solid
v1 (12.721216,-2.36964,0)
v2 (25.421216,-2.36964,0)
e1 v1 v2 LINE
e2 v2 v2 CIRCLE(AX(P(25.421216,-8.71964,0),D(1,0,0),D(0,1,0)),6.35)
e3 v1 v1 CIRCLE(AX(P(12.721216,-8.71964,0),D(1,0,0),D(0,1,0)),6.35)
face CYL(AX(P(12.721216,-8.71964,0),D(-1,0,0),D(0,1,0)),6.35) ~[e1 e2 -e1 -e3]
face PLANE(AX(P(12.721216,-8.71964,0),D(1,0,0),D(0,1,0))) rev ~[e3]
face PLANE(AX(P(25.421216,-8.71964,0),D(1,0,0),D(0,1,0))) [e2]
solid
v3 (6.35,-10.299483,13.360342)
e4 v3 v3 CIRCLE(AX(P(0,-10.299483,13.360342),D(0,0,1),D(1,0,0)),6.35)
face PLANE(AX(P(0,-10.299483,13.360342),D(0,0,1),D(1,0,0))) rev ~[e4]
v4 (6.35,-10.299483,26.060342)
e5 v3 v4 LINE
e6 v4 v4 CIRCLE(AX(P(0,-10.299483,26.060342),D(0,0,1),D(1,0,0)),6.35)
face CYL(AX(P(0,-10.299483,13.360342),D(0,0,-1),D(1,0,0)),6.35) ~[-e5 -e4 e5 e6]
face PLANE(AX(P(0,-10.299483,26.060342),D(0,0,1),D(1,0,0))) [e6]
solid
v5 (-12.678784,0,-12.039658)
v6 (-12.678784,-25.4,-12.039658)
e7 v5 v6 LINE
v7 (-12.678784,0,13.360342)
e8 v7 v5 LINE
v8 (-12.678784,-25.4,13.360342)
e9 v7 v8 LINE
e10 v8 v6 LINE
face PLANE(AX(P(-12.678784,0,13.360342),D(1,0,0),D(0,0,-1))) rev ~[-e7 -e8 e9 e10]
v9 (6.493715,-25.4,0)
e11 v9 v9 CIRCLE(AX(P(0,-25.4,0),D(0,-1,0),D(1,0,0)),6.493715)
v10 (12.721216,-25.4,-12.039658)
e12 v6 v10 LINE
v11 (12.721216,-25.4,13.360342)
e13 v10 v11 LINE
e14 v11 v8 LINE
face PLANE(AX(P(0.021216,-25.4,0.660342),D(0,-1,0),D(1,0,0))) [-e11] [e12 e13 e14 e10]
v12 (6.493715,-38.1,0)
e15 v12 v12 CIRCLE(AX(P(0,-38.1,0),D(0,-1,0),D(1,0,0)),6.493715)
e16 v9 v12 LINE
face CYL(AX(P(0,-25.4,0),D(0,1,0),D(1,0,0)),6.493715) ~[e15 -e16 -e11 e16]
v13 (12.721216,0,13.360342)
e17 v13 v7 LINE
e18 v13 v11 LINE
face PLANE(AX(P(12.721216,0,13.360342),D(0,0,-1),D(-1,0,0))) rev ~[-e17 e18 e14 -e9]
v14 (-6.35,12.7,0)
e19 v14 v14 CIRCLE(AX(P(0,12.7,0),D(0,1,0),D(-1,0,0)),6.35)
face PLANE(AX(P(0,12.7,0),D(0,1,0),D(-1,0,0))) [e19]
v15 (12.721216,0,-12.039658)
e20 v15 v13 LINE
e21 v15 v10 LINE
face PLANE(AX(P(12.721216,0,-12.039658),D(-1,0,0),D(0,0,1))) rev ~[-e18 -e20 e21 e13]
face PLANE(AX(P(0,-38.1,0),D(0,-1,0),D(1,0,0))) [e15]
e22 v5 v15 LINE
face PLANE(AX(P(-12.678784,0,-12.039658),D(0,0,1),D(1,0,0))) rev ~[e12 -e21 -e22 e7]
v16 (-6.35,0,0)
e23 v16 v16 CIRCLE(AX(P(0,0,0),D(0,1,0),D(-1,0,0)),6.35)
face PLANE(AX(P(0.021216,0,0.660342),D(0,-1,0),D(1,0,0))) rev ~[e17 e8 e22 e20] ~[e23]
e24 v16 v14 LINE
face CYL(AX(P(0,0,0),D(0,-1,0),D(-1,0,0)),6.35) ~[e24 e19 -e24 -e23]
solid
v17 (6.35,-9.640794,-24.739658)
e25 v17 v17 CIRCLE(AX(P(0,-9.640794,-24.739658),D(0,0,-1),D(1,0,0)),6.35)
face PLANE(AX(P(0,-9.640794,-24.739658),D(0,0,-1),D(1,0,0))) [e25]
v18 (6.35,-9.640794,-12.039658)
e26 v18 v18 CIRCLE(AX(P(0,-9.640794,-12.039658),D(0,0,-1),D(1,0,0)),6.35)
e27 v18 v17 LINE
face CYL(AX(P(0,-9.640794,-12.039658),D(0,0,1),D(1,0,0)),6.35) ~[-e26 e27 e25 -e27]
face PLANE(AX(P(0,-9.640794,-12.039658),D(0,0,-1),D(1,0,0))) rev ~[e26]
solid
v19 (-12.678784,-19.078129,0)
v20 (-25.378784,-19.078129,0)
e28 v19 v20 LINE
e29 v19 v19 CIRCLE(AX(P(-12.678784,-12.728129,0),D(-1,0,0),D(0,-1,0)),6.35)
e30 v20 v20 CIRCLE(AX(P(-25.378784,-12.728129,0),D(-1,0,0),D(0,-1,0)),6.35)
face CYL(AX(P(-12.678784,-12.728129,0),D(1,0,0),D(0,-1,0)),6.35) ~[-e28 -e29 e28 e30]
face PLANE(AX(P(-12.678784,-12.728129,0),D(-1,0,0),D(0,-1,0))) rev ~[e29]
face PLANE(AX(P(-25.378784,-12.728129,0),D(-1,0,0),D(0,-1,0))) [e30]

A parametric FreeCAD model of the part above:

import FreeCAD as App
import Part
import Sketcher
Q = App.Units.Quantity

doc = App.newDocument("Part")
body = doc.addObject("PartDesign::Body", "Body")

# Sketch on XZ plane
sketch1 = body.newObject("Sketcher::SketchObject", "Sketch")
sketch1.AttachmentSupport = (doc.getObject("XZ_Plane"), [""])
sketch1.MapMode = "FlatFace"
sketch1.addGeometry([
    Part.LineSegment(App.Vector(12.721216, 13.360342, 0), App.Vector(-12.678784, 13.360342, 0)),
    Part.LineSegment(App.Vector(-12.678784, 13.360342, 0), App.Vector(-12.678784, -12.039658, 0)),
    Part.LineSegment(App.Vector(-12.678784, -12.039658, 0), App.Vector(12.721216, -12.039658, 0)),
    Part.LineSegment(App.Vector(12.721216, -12.039658, 0), App.Vector(12.721216, 13.360342, 0)),
], False)
sketch1.addConstraint([
    Sketcher.Constraint("Coincident", 0, 2, 1, 1),
    Sketcher.Constraint("Coincident", 1, 2, 2, 1),
    Sketcher.Constraint("Coincident", 2, 2, 3, 1),
    Sketcher.Constraint("Coincident", 3, 2, 0, 1),
    Sketcher.Constraint("Horizontal", 0),
    Sketcher.Constraint("Vertical", 1),
    Sketcher.Constraint("Horizontal", 2),
    Sketcher.Constraint("Vertical", 3),
    Sketcher.Constraint("Equal", 2, 1),
    Sketcher.Constraint("DistanceX", 0, 2, 0, 1, Q("1 in")),
    Sketcher.Constraint("DistanceY", -1, 1, 0, 2, Q("13.360342 mm")),
    Sketcher.Constraint("DistanceX", 0, 2, -1, 1, Q("12.678784 mm")),
])
pad1 = body.newObject("PartDesign::Pad", "Pad")
pad1.Profile = sketch1
pad1.Length = Q("1 in")

# Sketch on XZ plane
sketch2 = body.newObject("Sketcher::SketchObject", "Sketch001")
sketch2.AttachmentSupport = (doc.getObject("XZ_Plane"), [""])
sketch2.MapMode = "FlatFace"
sketch2.addGeometry(Part.Circle(App.Vector(0, 0, 0), App.Vector(0, 0, 1), 6.35), False)
sketch2.addConstraint([
    Sketcher.Constraint("Coincident", 0, 3, -1, 1),
    Sketcher.Constraint("Diameter", 0, Q("0.5 in")),
])
pad2 = body.newObject("PartDesign::Pad", "Pad001")
pad2.Profile = sketch2
pad2.Length = Q("0.5 in")
pad2.Reversed = True

# Sketch on XZ plane
sketch3 = body.newObject("Sketcher::SketchObject", "Sketch002")
sketch3.AttachmentSupport = (doc.getObject("XZ_Plane"), [""])
sketch3.MapMode = "FlatFace"
sketch3.AttachmentOffset = App.Placement(App.Vector(0, 0, 1 * 25.4), App.Rotation())
sketch3.addGeometry(Part.Circle(App.Vector(0, 0, 0), App.Vector(0, 0, 1), 6.493715), False)
sketch3.addConstraint([
    Sketcher.Constraint("Coincident", 0, 3, -1, 1),
    Sketcher.Constraint("Diameter", 0, Q("12.98743 mm")),
])
pad3 = body.newObject("PartDesign::Pad", "Pad002")
pad3.Profile = sketch3
pad3.Length = Q("0.5 in")
body2 = doc.addObject("PartDesign::Body", "Body001")

# Sketch on XY plane
sketch4 = body2.newObject("Sketcher::SketchObject", "Sketch003")
sketch4.AttachmentSupport = (doc.getObject("XY_Plane001"), [""])
sketch4.MapMode = "FlatFace"
sketch4.AttachmentOffset = App.Placement(App.Vector(0, 0, 13.360342), App.Rotation())
sketch4.addGeometry(Part.Circle(App.Vector(0, -10.299483, 0), App.Vector(0, 0, 1), 6.35), False)
sketch4.addConstraint([
    Sketcher.Constraint("PointOnObject", 0, 3, -2),
    Sketcher.Constraint("Diameter", 0, Q("0.5 in")),
    Sketcher.Constraint("DistanceY", 0, 3, -1, 1, Q("10.299483 mm")),
])
pad4 = body2.newObject("PartDesign::Pad", "Pad003")
pad4.Profile = sketch4
pad4.Length = Q("0.5 in")
body3 = doc.addObject("PartDesign::Body", "Body002")

# Sketch on YZ plane
sketch5 = body3.newObject("Sketcher::SketchObject", "Sketch004")
sketch5.AttachmentSupport = (doc.getObject("YZ_Plane002"), [""])
sketch5.MapMode = "FlatFace"
sketch5.AttachmentOffset = App.Placement(App.Vector(0, 0, -12.678784), App.Rotation())
sketch5.addGeometry(Part.Circle(App.Vector(-12.728129, 0, 0), App.Vector(0, 0, 1), 6.35), False)
sketch5.addConstraint([
    Sketcher.Constraint("PointOnObject", 0, 3, -1),
    Sketcher.Constraint("Diameter", 0, Q("0.5 in")),
    Sketcher.Constraint("DistanceX", 0, 3, -1, 1, Q("12.728129 mm")),
])
pad5 = body3.newObject("PartDesign::Pad", "Pad004")
pad5.Profile = sketch5
pad5.Length = Q("0.5 in")
pad5.Reversed = True
body4 = doc.addObject("PartDesign::Body", "Body003")

# Sketch on XY plane
sketch6 = body4.newObject("Sketcher::SketchObject", "Sketch005")
sketch6.AttachmentSupport = (doc.getObject("XY_Plane003"), [""])
sketch6.MapMode = "FlatFace"
sketch6.AttachmentOffset = App.Placement(App.Vector(0, 0, -12.039658), App.Rotation())
sketch6.addGeometry(Part.Circle(App.Vector(0, -9.640794, 0), App.Vector(0, 0, 1), 6.35), False)
sketch6.addConstraint([
    Sketcher.Constraint("PointOnObject", 0, 3, -2),
    Sketcher.Constraint("Diameter", 0, Q("0.5 in")),
    Sketcher.Constraint("DistanceY", 0, 3, -1, 1, Q("9.640794 mm")),
])
pad6 = body4.newObject("PartDesign::Pad", "Pad005")
pad6.Profile = sketch6
pad6.Length = Q("0.5 in")
pad6.Reversed = True
body5 = doc.addObject("PartDesign::Body", "Body004")

# Sketch on YZ plane
sketch7 = body5.newObject("Sketcher::SketchObject", "Sketch006")
sketch7.AttachmentSupport = (doc.getObject("YZ_Plane004"), [""])
sketch7.MapMode = "FlatFace"
sketch7.AttachmentOffset = App.Placement(App.Vector(0, 0, 12.721216), App.Rotation())
sketch7.addGeometry(Part.Circle(App.Vector(-8.71964, 0, 0), App.Vector(0, 0, 1), 6.35), False)
sketch7.addConstraint([
    Sketcher.Constraint("PointOnObject", 0, 3, -1),
    Sketcher.Constraint("Diameter", 0, Q("0.5 in")),
    Sketcher.Constraint("DistanceX", 0, 3, -1, 1, Q("8.71964 mm")),
])
pad7 = body5.newObject("PartDesign::Pad", "Pad006")
pad7.Profile = sketch7
pad7.Length = Q("0.5 in")

doc.recompute()
